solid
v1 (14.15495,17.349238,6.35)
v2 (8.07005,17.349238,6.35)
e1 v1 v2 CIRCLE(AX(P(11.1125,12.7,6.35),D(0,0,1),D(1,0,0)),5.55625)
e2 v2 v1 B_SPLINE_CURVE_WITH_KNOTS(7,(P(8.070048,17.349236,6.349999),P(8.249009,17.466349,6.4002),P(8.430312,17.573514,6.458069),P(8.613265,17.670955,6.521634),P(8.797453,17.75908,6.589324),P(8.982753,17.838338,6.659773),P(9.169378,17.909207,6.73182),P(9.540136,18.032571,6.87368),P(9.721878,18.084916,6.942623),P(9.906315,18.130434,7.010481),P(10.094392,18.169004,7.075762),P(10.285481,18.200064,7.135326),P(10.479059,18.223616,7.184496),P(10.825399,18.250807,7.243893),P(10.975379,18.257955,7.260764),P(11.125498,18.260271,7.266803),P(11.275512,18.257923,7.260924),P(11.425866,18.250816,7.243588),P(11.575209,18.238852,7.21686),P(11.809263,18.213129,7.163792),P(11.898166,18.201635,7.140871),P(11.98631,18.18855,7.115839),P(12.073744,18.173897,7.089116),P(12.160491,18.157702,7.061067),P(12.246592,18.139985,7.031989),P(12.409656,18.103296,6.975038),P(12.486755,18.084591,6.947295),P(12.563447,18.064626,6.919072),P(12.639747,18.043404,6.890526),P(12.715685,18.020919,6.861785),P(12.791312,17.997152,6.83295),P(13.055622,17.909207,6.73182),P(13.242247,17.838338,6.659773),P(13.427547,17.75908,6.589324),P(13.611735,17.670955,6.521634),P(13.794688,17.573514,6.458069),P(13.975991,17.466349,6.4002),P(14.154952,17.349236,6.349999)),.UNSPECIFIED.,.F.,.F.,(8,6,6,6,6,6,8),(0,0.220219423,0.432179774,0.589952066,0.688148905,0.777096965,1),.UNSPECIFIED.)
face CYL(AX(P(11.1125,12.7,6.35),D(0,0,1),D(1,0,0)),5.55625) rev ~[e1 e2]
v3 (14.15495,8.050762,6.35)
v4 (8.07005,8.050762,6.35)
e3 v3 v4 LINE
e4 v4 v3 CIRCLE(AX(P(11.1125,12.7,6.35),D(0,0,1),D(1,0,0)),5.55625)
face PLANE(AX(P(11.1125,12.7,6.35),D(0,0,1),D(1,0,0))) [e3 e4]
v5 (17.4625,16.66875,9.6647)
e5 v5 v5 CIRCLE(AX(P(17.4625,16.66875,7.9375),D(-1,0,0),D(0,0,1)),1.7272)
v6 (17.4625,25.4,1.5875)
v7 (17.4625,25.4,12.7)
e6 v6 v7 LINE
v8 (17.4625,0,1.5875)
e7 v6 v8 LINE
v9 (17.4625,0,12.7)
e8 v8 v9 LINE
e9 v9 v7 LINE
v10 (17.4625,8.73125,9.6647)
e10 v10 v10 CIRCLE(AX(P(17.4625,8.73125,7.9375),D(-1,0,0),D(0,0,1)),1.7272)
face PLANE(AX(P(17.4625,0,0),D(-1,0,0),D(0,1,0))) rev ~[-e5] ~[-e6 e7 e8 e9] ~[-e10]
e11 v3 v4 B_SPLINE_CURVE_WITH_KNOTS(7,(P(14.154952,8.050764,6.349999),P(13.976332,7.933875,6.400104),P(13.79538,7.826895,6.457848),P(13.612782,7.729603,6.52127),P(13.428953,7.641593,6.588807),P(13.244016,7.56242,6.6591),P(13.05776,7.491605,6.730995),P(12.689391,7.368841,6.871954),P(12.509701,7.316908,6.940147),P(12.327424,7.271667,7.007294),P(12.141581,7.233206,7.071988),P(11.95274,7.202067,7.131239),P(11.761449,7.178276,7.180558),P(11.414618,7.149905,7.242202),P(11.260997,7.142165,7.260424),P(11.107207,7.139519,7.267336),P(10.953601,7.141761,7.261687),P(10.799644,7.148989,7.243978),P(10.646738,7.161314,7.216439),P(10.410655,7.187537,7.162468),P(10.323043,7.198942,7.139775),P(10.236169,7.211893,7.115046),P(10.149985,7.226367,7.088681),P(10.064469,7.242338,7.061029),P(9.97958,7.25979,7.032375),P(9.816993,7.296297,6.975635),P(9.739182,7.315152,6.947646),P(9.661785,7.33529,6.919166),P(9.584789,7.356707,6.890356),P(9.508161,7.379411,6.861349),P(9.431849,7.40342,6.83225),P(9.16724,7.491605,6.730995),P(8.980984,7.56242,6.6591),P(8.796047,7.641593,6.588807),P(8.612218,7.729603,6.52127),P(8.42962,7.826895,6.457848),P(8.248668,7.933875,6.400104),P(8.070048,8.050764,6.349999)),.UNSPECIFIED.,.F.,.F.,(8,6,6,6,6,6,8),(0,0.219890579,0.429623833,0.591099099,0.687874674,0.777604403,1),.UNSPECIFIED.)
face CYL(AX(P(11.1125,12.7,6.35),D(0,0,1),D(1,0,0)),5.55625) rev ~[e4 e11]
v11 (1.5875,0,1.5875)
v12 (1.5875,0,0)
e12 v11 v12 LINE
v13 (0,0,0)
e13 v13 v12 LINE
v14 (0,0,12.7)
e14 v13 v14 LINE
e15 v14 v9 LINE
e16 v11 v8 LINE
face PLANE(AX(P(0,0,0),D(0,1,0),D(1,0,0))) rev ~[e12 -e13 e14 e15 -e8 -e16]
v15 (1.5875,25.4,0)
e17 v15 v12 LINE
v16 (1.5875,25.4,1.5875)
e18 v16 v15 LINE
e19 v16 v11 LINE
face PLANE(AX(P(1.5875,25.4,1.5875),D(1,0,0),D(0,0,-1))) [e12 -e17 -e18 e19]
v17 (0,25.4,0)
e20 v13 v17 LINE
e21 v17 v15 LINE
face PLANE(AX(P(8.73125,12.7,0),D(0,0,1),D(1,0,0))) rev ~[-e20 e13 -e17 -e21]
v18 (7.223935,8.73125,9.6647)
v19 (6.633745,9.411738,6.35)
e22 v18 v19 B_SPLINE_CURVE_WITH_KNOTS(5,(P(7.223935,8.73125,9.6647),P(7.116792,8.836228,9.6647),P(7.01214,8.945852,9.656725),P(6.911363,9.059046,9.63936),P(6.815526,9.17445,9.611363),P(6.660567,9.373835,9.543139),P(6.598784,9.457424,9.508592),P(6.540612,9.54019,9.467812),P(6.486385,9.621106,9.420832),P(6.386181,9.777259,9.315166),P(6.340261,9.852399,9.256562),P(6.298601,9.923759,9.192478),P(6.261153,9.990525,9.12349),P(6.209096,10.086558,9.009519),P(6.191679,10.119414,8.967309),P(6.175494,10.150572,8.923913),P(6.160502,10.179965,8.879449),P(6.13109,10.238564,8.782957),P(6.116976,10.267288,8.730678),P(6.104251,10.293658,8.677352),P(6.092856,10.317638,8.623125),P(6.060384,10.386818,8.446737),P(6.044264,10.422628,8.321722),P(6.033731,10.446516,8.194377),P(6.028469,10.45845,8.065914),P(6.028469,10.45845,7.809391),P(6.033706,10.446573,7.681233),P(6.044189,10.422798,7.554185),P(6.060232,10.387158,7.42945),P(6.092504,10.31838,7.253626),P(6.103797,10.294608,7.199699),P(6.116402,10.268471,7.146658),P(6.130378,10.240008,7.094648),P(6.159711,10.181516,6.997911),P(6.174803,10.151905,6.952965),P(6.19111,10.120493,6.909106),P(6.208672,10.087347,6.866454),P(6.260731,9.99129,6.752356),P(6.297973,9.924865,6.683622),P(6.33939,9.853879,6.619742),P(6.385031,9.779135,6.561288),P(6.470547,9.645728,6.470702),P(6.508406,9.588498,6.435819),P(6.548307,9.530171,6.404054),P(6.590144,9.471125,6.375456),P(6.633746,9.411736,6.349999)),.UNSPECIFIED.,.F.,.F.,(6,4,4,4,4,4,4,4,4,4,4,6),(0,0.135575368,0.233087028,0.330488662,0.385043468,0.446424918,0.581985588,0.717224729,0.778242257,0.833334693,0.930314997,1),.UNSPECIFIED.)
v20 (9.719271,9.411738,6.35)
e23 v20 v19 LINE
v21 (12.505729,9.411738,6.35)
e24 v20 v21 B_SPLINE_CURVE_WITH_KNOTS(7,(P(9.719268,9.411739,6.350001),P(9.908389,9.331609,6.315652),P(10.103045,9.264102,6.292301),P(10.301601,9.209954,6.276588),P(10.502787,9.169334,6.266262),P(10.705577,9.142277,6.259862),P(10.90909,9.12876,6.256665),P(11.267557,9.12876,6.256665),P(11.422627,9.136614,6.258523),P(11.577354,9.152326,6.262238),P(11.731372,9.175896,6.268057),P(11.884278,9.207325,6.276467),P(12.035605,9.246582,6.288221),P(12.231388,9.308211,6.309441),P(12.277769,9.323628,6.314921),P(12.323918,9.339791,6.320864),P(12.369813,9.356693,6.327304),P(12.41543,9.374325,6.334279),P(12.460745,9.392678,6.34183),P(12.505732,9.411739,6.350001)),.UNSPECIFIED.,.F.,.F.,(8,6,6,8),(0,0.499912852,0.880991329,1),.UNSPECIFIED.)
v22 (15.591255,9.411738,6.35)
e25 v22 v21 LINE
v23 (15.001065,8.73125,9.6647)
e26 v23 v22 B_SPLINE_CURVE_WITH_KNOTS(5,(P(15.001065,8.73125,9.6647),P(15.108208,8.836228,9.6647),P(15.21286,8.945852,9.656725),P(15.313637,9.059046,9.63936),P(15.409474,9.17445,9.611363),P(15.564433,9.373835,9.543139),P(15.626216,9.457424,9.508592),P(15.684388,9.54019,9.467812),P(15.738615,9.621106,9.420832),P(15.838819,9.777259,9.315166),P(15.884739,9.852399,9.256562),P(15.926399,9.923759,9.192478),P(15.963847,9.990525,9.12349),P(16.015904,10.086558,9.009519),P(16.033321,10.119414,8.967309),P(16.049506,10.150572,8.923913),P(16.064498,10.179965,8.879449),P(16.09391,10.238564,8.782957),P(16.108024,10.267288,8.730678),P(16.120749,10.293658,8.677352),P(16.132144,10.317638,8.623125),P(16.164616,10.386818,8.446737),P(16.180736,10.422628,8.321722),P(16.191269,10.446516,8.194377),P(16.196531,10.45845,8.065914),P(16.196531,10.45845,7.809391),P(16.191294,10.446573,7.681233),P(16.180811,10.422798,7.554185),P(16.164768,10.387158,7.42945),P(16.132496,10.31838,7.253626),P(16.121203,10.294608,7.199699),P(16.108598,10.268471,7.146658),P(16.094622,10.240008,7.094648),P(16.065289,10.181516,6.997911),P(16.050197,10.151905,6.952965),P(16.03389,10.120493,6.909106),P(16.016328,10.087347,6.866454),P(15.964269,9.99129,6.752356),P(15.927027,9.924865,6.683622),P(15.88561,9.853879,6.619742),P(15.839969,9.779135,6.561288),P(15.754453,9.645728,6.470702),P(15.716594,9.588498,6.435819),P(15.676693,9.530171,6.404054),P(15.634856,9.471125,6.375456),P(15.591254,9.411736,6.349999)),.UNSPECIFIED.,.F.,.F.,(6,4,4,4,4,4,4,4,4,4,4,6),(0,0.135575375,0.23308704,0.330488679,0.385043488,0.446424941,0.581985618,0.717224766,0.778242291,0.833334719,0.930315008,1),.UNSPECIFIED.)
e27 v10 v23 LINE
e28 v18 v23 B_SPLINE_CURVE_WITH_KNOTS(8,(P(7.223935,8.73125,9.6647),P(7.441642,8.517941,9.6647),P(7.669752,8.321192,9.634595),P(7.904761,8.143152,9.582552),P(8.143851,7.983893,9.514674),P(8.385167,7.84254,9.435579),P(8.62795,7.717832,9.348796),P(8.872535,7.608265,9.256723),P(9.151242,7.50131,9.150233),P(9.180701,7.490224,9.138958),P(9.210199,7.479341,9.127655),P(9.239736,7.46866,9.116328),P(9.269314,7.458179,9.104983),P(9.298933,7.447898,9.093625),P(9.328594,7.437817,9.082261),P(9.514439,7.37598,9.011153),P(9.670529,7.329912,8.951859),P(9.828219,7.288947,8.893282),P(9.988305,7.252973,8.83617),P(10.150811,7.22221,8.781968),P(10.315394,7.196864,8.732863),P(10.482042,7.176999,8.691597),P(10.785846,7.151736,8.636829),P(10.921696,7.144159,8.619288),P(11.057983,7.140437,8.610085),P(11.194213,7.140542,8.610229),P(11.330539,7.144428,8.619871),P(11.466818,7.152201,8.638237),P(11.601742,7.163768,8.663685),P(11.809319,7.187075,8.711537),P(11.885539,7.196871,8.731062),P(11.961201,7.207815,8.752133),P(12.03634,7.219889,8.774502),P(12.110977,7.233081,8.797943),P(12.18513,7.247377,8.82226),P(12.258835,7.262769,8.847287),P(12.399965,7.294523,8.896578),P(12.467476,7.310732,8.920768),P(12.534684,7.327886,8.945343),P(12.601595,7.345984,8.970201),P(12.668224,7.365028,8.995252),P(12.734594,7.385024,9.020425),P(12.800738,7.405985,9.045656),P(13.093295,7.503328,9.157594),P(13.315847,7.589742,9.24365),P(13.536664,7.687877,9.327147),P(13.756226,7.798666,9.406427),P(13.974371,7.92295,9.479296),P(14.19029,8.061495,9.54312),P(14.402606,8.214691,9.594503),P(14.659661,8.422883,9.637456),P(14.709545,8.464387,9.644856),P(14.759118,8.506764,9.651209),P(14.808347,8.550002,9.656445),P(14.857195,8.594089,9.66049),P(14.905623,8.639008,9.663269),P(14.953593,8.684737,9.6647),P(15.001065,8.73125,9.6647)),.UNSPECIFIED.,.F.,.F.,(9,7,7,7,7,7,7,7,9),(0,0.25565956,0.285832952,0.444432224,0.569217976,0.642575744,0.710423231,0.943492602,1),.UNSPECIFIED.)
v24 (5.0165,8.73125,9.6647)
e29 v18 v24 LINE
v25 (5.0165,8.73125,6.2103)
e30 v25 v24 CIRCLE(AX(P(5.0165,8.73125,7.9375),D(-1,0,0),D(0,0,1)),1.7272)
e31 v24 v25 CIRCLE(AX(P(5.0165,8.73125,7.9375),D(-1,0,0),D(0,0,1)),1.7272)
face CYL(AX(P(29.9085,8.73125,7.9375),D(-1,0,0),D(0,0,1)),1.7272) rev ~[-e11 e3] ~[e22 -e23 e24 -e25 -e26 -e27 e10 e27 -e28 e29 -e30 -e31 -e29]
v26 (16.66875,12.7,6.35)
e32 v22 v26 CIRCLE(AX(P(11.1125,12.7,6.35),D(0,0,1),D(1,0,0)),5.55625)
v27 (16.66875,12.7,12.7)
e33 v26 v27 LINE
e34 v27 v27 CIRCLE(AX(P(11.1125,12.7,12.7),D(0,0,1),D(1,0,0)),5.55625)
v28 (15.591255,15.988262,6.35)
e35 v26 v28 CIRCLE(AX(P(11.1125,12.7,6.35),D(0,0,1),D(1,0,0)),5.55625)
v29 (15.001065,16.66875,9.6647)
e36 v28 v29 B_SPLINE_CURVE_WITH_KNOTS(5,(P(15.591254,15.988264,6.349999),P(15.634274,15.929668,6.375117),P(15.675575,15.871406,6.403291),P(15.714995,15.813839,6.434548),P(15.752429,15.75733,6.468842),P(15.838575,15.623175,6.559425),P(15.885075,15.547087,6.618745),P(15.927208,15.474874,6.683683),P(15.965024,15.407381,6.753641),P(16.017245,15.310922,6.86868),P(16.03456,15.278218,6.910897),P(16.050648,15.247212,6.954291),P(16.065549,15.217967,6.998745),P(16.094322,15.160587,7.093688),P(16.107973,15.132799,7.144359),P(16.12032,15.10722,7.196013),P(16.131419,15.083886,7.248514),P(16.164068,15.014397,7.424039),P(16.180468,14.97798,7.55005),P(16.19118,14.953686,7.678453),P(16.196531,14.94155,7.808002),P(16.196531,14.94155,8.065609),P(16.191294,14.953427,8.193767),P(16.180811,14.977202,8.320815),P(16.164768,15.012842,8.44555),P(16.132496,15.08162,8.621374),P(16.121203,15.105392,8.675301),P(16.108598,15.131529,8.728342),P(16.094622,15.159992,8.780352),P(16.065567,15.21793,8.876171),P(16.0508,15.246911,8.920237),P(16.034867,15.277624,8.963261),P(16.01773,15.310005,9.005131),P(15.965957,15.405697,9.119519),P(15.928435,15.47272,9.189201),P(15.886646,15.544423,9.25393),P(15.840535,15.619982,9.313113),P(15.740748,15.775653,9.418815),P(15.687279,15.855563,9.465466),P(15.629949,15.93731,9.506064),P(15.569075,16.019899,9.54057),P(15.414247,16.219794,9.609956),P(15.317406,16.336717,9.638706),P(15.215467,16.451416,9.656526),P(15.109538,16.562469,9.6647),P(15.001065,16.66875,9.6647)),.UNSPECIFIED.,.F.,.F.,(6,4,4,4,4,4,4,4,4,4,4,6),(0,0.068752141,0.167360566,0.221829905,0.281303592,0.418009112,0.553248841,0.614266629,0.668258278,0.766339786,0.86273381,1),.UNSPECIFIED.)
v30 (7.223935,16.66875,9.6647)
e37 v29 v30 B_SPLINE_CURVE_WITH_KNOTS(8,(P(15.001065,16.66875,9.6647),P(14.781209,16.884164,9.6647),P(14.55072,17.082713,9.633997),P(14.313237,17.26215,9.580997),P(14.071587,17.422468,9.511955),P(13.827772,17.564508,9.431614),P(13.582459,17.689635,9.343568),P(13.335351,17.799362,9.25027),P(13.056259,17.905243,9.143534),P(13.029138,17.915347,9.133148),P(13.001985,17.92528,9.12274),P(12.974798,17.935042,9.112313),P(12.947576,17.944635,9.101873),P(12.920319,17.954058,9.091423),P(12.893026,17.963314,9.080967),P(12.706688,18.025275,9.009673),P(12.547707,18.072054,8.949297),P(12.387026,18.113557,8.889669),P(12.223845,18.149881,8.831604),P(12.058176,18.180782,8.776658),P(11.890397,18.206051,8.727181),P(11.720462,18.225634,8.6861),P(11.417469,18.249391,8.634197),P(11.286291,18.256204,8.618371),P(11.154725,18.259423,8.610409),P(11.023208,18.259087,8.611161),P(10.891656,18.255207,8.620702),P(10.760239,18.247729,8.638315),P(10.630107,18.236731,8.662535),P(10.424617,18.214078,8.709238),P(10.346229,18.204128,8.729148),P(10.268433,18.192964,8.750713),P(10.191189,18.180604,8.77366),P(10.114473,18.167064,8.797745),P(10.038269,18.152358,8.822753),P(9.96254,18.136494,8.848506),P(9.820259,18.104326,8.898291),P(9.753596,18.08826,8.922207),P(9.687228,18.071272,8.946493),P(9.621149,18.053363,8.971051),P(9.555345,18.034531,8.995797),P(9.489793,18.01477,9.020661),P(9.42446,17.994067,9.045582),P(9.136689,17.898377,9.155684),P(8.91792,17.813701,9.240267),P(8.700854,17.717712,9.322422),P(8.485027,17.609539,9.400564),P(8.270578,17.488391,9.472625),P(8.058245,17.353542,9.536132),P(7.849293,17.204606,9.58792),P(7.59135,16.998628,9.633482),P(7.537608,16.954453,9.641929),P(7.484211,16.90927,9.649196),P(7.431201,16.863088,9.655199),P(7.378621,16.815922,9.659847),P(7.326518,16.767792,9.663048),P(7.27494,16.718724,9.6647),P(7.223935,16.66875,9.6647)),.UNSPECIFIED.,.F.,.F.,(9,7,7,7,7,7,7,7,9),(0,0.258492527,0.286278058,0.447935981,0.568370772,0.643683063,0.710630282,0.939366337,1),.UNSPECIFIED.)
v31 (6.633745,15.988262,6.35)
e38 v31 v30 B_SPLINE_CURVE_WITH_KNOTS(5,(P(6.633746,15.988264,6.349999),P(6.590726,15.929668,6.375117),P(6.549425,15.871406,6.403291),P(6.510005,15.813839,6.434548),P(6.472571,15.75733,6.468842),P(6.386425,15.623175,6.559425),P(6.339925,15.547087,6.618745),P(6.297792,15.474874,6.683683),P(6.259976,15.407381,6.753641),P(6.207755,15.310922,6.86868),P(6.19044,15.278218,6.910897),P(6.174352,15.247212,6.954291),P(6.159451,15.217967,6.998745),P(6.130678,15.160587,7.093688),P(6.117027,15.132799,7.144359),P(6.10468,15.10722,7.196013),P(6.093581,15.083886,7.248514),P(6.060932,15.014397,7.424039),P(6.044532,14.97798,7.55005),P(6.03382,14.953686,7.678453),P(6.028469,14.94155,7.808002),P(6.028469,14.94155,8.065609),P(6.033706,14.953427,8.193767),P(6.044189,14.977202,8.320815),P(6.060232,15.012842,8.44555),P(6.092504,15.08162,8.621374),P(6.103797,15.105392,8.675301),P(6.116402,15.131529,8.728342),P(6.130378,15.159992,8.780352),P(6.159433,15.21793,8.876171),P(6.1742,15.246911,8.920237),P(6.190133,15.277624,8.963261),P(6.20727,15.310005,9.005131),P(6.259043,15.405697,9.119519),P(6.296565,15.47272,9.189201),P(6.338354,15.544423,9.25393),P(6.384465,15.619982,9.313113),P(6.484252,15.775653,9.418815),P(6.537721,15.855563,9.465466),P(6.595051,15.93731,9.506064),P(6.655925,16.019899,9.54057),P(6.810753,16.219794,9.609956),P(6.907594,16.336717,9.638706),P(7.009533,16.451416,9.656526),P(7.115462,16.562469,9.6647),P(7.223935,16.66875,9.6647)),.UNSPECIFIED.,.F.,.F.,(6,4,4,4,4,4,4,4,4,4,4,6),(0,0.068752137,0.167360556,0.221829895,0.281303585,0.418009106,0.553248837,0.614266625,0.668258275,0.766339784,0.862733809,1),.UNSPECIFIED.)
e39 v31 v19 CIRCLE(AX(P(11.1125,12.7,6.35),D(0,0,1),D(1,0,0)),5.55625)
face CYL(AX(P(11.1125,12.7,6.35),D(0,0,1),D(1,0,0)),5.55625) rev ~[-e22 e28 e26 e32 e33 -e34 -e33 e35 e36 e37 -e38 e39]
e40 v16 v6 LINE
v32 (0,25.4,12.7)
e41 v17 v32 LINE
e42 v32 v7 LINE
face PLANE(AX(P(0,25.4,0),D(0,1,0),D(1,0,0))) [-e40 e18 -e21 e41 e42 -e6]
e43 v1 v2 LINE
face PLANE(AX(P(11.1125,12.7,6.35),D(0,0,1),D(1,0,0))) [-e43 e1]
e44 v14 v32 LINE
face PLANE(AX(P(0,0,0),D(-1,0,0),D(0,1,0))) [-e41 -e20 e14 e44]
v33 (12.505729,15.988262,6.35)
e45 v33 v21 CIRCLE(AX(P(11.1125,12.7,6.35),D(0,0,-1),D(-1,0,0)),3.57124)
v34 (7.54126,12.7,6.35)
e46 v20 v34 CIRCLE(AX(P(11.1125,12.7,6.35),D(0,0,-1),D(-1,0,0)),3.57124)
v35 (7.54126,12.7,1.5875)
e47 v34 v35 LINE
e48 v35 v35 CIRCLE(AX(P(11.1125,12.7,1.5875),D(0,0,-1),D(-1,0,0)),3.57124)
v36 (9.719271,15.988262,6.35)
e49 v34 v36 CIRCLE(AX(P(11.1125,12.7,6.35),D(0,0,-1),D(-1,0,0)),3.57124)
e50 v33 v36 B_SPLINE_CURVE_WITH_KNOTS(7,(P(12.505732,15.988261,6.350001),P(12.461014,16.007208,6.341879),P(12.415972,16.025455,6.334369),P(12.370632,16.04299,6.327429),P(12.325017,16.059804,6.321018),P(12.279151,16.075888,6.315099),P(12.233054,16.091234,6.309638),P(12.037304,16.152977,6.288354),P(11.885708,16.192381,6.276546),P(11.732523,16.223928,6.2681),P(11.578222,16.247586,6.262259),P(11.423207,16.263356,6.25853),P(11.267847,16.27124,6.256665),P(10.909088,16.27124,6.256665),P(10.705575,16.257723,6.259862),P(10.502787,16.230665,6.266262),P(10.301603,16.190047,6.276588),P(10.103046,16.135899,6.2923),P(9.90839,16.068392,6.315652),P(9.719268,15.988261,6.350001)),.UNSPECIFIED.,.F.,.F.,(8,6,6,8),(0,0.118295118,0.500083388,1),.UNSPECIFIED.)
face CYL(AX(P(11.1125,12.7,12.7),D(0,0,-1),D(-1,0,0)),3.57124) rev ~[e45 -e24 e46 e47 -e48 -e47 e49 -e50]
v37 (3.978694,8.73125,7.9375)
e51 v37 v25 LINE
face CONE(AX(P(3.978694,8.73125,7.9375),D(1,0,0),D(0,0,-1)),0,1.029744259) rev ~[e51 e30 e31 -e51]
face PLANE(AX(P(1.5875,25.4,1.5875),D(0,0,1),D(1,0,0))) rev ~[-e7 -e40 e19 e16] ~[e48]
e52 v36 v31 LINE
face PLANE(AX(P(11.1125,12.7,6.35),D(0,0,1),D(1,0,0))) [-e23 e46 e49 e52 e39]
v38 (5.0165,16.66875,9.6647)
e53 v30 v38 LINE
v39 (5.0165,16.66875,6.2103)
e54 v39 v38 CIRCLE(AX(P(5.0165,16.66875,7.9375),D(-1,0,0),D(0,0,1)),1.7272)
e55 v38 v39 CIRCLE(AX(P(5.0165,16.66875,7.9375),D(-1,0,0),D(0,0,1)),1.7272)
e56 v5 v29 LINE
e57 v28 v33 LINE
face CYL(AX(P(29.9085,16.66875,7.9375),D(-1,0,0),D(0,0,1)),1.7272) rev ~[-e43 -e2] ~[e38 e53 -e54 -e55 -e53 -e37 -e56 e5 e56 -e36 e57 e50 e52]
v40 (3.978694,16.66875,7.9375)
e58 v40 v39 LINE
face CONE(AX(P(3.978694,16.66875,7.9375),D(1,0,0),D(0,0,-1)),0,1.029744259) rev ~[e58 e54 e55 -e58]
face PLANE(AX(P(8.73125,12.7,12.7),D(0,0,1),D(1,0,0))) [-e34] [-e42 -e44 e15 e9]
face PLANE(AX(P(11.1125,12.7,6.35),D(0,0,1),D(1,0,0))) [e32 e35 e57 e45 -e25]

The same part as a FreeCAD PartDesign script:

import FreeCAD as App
import Part
import Sketcher

V = App.Vector
Q = App.Units.Quantity


def add_polygon(sketch, points):
    """Adds a closed chain of lines whose ends are joined by coincident constraints."""
    first, n = sketch.GeometryCount, len(points)
    for a, b in zip(points, points[1:] + points[:1]):
        sketch.addGeometry(Part.LineSegment(App.Vector(*a, 0), App.Vector(*b, 0)), False)
    for i in range(n):
        sketch.addConstraint(Sketcher.Constraint("Coincident", first + i, 2, first + (i + 1) % n, 1))

doc = App.newDocument("Part")
body = doc.addObject("PartDesign::Body", "Body")

# Sketch on XY plane
sketch1 = body.newObject("Sketcher::SketchObject", "Sketch")
sketch1.AttachmentSupport = (doc.getObject("XY_Plane"), [""])
sketch1.MapMode = "FlatFace"
add_polygon(sketch1, [(0, 25.4), (0, 0), (17.4625, 0), (17.4625, 25.4)])  # lines 0-3
sketch1.addConstraint([
    Sketcher.Constraint("Vertical", 0),
    Sketcher.Constraint("Horizontal", 1),
    Sketcher.Constraint("Vertical", 2),
    Sketcher.Constraint("Horizontal", 3),
    Sketcher.Constraint("Coincident", 0, 2, -1, 1),
    Sketcher.Constraint("DistanceY", 0, 2, 0, 1, Q("1 in")),
    Sketcher.Constraint("DistanceX", 1, 1, 1, 2, Q("0.6875 in")),
])
pad1 = body.newObject("PartDesign::Pad", "Pad")
pad1.Profile = sketch1
pad1.Length = Q("0.5 in")

# Sketch on XZ plane
sketch2 = body.newObject("Sketcher::SketchObject", "Sketch001")
sketch2.AttachmentSupport = (doc.getObject("XZ_Plane"), [""])
sketch2.MapMode = "FlatFace"
sketch2.AttachmentOffset = App.Placement(V(0, 0, -1 * 25.4), App.Rotation())
add_polygon(sketch2, [(1.5875, 0), (1.5875, 1.5875), (17.4625, 1.5875), (17.4625, 0)])  # lines 0-3
sketch2.addConstraint([
    Sketcher.Constraint("Vertical", 0),
    Sketcher.Constraint("Horizontal", 1),
    Sketcher.Constraint("Vertical", 2),
    Sketcher.Constraint("Horizontal", 3),
    Sketcher.Constraint("PointOnObject", 2, 2, -1),
    Sketcher.Constraint("DistanceX", 1, 1, 1, 2, Q("0.625 in")),
    Sketcher.Constraint("DistanceY", 0, 1, 0, 2, Q("0.0625 in")),
    Sketcher.Constraint("DistanceX", -1, 1, 0, 2, Q("0.0625 in")),
])
pocket1 = body.newObject("PartDesign::Pocket", "Pocket")
pocket1.Profile = sketch2
pocket1.Type = "ThroughAll"
pocket1.Reversed = True

# Sketch on YZ plane
sketch3 = body.newObject("Sketcher::SketchObject", "Sketch002")
sketch3.AttachmentSupport = (doc.getObject("YZ_Plane"), [""])
sketch3.MapMode = "FlatFace"
sketch3.AttachmentOffset = App.Placement(V(0, 0, 0.6875 * 25.4), App.Rotation())
sketch3.addGeometry([
    Part.Circle(V(16.66875, 7.9375, 0), V(0, 0, 1), 1.7272),
    Part.Circle(V(8.73125, 7.9375, 0), V(0, 0, 1), 1.7272),
], False)
sketch3.addConstraint([
    Sketcher.Constraint("Equal", 0, 1),
    Sketcher.Constraint("Horizontal", 0, 3, 1, 3),
    Sketcher.Constraint("Diameter", 0, Q("0.136 in")),
    Sketcher.Constraint("DistanceX", -1, 1, 0, 3, Q("0.65625 in")),
    Sketcher.Constraint("DistanceY", -1, 1, 0, 3, Q("0.3125 in")),
    Sketcher.Constraint("DistanceX", -1, 1, 1, 3, Q("0.34375 in")),
])
doc.recompute()
hole = body.newObject("PartDesign::Hole", "Hole")
hole.Profile = sketch3
hole.ThreadType = "None"
hole.Diameter = Q("0.136 in")
hole.DepthType = "Dimension"
hole.Depth = Q("0.49 in")
hole.DrillPoint = "Angled"
hole.DrillPointAngle = 118

# Sketch on XY plane
sketch4 = body.newObject("Sketcher::SketchObject", "Sketch003")
sketch4.AttachmentSupport = (doc.getObject("XY_Plane"), [""])
sketch4.MapMode = "FlatFace"
sketch4.AttachmentOffset = App.Placement(V(0, 0, 0.5 * 25.4), App.Rotation())
sketch4.addGeometry(Part.Circle(V(11.1125, 12.7, 0), V(0, 0, 1), 3.57124), False)
sketch4.addConstraint([
    Sketcher.Constraint("Diameter", 0, Q("0.2812 in")),
    Sketcher.Constraint("DistanceY", -1, 1, 0, 3, Q("0.5 in")),
    Sketcher.Constraint("DistanceX", -1, 1, 0, 3, Q("0.4375 in")),
])
doc.recompute()
hole2 = body.newObject("PartDesign::Hole", "Hole001")
hole2.Profile = sketch4
hole2.ThreadType = "None"
hole2.Diameter = Q("0.2812 in")
hole2.DepthType = "ThroughAll"
hole2.HoleCutType = "Counterbore"
hole2.HoleCutDiameter = Q("0.4375 in")
hole2.HoleCutDepth = Q("0.25 in")

doc.recompute()
